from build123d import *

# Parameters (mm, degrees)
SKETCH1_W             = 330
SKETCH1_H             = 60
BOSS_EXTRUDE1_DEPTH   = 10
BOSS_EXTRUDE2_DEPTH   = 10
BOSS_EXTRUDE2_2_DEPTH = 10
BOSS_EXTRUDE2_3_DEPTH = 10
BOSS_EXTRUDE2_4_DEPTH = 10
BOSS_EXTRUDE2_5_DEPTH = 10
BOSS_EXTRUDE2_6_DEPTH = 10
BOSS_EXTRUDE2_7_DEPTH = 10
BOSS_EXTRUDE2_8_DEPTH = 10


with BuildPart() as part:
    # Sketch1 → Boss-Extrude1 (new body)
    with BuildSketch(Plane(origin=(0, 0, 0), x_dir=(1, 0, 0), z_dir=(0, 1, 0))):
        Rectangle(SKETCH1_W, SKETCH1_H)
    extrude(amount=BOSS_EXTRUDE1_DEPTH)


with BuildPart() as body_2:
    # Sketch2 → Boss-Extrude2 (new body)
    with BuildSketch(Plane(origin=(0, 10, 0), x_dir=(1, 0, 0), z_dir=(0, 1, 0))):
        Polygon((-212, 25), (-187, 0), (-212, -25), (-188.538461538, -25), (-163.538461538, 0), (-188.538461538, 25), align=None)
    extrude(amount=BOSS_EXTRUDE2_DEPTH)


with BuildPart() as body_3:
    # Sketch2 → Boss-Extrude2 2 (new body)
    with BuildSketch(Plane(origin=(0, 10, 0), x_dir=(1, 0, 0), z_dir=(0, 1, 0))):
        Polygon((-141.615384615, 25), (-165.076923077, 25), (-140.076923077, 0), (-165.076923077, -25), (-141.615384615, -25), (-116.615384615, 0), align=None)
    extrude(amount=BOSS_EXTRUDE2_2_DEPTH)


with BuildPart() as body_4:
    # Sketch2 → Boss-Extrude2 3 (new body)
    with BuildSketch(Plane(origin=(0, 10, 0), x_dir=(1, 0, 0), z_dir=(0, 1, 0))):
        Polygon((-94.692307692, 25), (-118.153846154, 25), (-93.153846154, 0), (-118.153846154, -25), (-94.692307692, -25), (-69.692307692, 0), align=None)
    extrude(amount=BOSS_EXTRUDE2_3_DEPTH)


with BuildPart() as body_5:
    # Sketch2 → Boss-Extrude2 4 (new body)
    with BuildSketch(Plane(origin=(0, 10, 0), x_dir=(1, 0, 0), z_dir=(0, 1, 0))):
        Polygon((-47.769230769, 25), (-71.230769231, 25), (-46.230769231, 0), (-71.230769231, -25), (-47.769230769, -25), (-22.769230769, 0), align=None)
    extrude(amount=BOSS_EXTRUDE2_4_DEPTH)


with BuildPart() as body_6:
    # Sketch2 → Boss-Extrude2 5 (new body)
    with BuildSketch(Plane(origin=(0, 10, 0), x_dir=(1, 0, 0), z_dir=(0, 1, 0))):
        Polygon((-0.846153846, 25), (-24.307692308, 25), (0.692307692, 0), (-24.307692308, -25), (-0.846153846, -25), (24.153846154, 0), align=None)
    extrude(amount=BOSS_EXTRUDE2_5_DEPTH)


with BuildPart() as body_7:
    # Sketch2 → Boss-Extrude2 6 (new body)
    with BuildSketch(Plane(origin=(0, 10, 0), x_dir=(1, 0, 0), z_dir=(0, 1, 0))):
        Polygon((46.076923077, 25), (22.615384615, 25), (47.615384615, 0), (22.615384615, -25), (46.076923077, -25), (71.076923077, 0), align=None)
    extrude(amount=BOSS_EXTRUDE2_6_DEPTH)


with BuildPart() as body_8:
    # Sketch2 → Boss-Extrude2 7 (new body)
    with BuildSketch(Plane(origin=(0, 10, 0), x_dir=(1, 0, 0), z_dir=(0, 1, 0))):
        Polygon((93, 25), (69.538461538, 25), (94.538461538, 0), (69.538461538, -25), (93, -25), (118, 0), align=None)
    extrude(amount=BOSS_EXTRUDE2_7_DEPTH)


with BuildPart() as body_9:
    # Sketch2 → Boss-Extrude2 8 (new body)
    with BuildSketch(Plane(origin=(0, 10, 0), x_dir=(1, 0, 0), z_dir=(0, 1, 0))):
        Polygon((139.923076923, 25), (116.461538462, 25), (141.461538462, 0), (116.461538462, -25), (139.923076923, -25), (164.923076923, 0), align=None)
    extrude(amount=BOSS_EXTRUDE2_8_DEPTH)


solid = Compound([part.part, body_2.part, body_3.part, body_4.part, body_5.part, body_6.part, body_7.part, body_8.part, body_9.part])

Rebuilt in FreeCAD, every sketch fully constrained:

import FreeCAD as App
import Part
import Sketcher
from FreeCAD import Vector
Q = App.Units.Quantity


def add_polygon(sketch, points):
    """Adds a closed chain of lines whose ends are joined by coincident constraints."""
    first, n = sketch.GeometryCount, len(points)
    for a, b in zip(points, points[1:] + points[:1]):
        sketch.addGeometry(Part.LineSegment(App.Vector(*a, 0), App.Vector(*b, 0)), False)
    for i in range(n):
        sketch.addConstraint(Sketcher.Constraint("Coincident", first + i, 2, first + (i + 1) % n, 1))

doc = App.newDocument("Part")
body = doc.addObject("PartDesign::Body", "Body")

# Sketch on XZ plane
sketch1 = body.newObject("Sketcher::SketchObject", "Sketch")
sketch1.AttachmentSupport = (doc.getObject("XZ_Plane"), [""])
sketch1.MapMode = "FlatFace"
add_polygon(sketch1, [(-165, -30), (-165, 30), (165, 30), (165, -30)])  # lines 0-3
sketch1.addConstraint(Sketcher.Constraint("Vertical", 0))
sketch1.addConstraint(Sketcher.Constraint("Horizontal", 1))
sketch1.addConstraint(Sketcher.Constraint("Vertical", 2))
sketch1.addConstraint(Sketcher.Constraint("Horizontal", 3))
sketch1.addConstraint(Sketcher.Constraint("Symmetric", 0, 2, 2, 2, -1, 1))
sketch1.addConstraint(Sketcher.Constraint("DistanceX", 1, 1, 1, 2, Q("330 mm")))
sketch1.addConstraint(Sketcher.Constraint("DistanceY", 0, 1, 0, 2, Q("60 mm")))
pad1 = body.newObject("PartDesign::Pad", "Pad")
pad1.Profile = sketch1
pad1.Length = 10
pad1.Reversed = True
body2 = doc.addObject("PartDesign::Body", "Body001")

# Sketch on XZ plane
sketch2 = body2.newObject("Sketcher::SketchObject", "Sketch001")
sketch2.AttachmentSupport = (doc.getObject("XZ_Plane001"), [""])
sketch2.MapMode = "FlatFace"
sketch2.AttachmentOffset = App.Placement(Vector(0, 0, -10), App.Rotation())
add_polygon(sketch2, [(-212, -25), (-187, 0), (-212, 25), (-188.538462, 25), (-163.538462, 0), (-188.538462, -25)])  # lines 0-5
sketch2.addConstraint(Sketcher.Constraint("Horizontal", 2))
sketch2.addConstraint(Sketcher.Constraint("Horizontal", 5))
sketch2.addConstraint(Sketcher.Constraint("Symmetric", 2, 2, 4, 2, -1))
sketch2.addConstraint(Sketcher.Constraint("PointOnObject", 0, 2, -1))
sketch2.addConstraint(Sketcher.Constraint("PointOnObject", 3, 2, -1))
sketch2.addConstraint(Sketcher.Constraint("Perpendicular", 0, 1))
sketch2.addConstraint(Sketcher.Constraint("Parallel", 1, 3))
sketch2.addConstraint(Sketcher.Constraint("Perpendicular", 3, 4))
sketch2.addConstraint(Sketcher.Constraint("DistanceX", 0, 2, -1, 1, Q("187 mm")))
sketch2.addConstraint(Sketcher.Constraint("DistanceX", 1, 2, -1, 1, Q("212 mm")))
sketch2.addConstraint(Sketcher.Constraint("DistanceX", 2, 1, 2, 2, Q("23.461538 mm")))
pad2 = body2.newObject("PartDesign::Pad", "Pad001")
pad2.Profile = sketch2
pad2.Length = 10
pad2.Reversed = True
body3 = doc.addObject("PartDesign::Body", "Body002")

# Sketch on XZ plane
sketch3 = body3.newObject("Sketcher::SketchObject", "Sketch002")
sketch3.AttachmentSupport = (doc.getObject("XZ_Plane002"), [""])
sketch3.MapMode = "FlatFace"
sketch3.AttachmentOffset = App.Placement(Vector(0, 0, -10), App.Rotation())
add_polygon(sketch3, [(-141.615385, -25), (-165.076923, -25), (-140.076923, 0), (-165.076923, 25), (-141.615385, 25), (-116.615385, 0)])  # lines 0-5
sketch3.addConstraint(Sketcher.Constraint("Horizontal", 0))
sketch3.addConstraint(Sketcher.Constraint("Horizontal", 3))
sketch3.addConstraint(Sketcher.Constraint("Symmetric", 0, 2, 2, 2, -1))
sketch3.addConstraint(Sketcher.Constraint("PointOnObject", 1, 2, -1))
sketch3.addConstraint(Sketcher.Constraint("PointOnObject", 4, 2, -1))
sketch3.addConstraint(Sketcher.Constraint("Perpendicular", 1, 2))
sketch3.addConstraint(Sketcher.Constraint("Parallel", 2, 4))
sketch3.addConstraint(Sketcher.Constraint("Perpendicular", 4, 5))
sketch3.addConstraint(Sketcher.Constraint("DistanceY", 0, 2, -1, 1, Q("25 mm")))
sketch3.addConstraint(Sketcher.Constraint("DistanceX", 0, 2, 0, 1, Q("23.461538 mm")))
sketch3.addConstraint(Sketcher.Constraint("DistanceX", 0, 2, -1, 1, Q("165.076923 mm")))
pad3 = body3.newObject("PartDesign::Pad", "Pad002")
pad3.Profile = sketch3
pad3.Length = 10
pad3.Reversed = True
body4 = doc.addObject("PartDesign::Body", "Body003")

# Sketch on XZ plane
sketch4 = body4.newObject("Sketcher::SketchObject", "Sketch003")
sketch4.AttachmentSupport = (doc.getObject("XZ_Plane003"), [""])
sketch4.MapMode = "FlatFace"
sketch4.AttachmentOffset = App.Placement(Vector(0, 0, -10), App.Rotation())
add_polygon(sketch4, [(-94.692308, -25), (-118.153846, -25), (-93.153846, 0), (-118.153846, 25), (-94.692308, 25), (-69.692308, 0)])  # lines 0-5
sketch4.addConstraint(Sketcher.Constraint("Horizontal", 0))
sketch4.addConstraint(Sketcher.Constraint("Horizontal", 3))
sketch4.addConstraint(Sketcher.Constraint("Symmetric", 0, 2, 2, 2, -1))
sketch4.addConstraint(Sketcher.Constraint("PointOnObject", 1, 2, -1))
sketch4.addConstraint(Sketcher.Constraint("PointOnObject", 4, 2, -1))
sketch4.addConstraint(Sketcher.Constraint("Perpendicular", 1, 2))
sketch4.addConstraint(Sketcher.Constraint("Parallel", 2, 4))
sketch4.addConstraint(Sketcher.Constraint("Perpendicular", 4, 5))
sketch4.addConstraint(Sketcher.Constraint("DistanceY", 0, 2, -1, 1, Q("25 mm")))
sketch4.addConstraint(Sketcher.Constraint("DistanceX", 0, 2, 0, 1, Q("23.461538 mm")))
sketch4.addConstraint(Sketcher.Constraint("DistanceX", 0, 2, -1, 1, Q("118.153846 mm")))
pad4 = body4.newObject("PartDesign::Pad", "Pad003")
pad4.Profile = sketch4
pad4.Length = 10
pad4.Reversed = True
body5 = doc.addObject("PartDesign::Body", "Body004")

# Sketch on XZ plane
sketch5 = body5.newObject("Sketcher::SketchObject", "Sketch004")
sketch5.AttachmentSupport = (doc.getObject("XZ_Plane004"), [""])
sketch5.MapMode = "FlatFace"
sketch5.AttachmentOffset = App.Placement(Vector(0, 0, -10), App.Rotation())
add_polygon(sketch5, [(-47.769231, -25), (-71.230769, -25), (-46.230769, 0), (-71.230769, 25), (-47.769231, 25), (-22.769231, 0)])  # lines 0-5
sketch5.addConstraint(Sketcher.Constraint("Horizontal", 0))
sketch5.addConstraint(Sketcher.Constraint("Horizontal", 3))
sketch5.addConstraint(Sketcher.Constraint("Symmetric", 0, 2, 2, 2, -1))
sketch5.addConstraint(Sketcher.Constraint("PointOnObject", 1, 2, -1))
sketch5.addConstraint(Sketcher.Constraint("PointOnObject", 4, 2, -1))
sketch5.addConstraint(Sketcher.Constraint("Perpendicular", 1, 2))
sketch5.addConstraint(Sketcher.Constraint("Parallel", 2, 4))
sketch5.addConstraint(Sketcher.Constraint("Perpendicular", 4, 5))
sketch5.addConstraint(Sketcher.Constraint("DistanceY", 0, 2, -1, 1, Q("25 mm")))
sketch5.addConstraint(Sketcher.Constraint("DistanceX", 0, 2, 0, 1, Q("23.461538 mm")))
sketch5.addConstraint(Sketcher.Constraint("DistanceX", 0, 2, -1, 1, Q("71.230769 mm")))
pad5 = body5.newObject("PartDesign::Pad", "Pad004")
pad5.Profile = sketch5
pad5.Length = 10
pad5.Reversed = True
body6 = doc.addObject("PartDesign::Body", "Body005")

# Sketch on XZ plane
sketch6 = body6.newObject("Sketcher::SketchObject", "Sketch005")
sketch6.AttachmentSupport = (doc.getObject("XZ_Plane005"), [""])
sketch6.MapMode = "FlatFace"
sketch6.AttachmentOffset = App.Placement(Vector(0, 0, -10), App.Rotation())
add_polygon(sketch6, [(-0.846154, -25), (-24.307692, -25), (0.692308, 0), (-24.307692, 25), (-0.846154, 25), (24.153846, 0)])  # lines 0-5
sketch6.addConstraint(Sketcher.Constraint("Horizontal", 0))
sketch6.addConstraint(Sketcher.Constraint("Horizontal", 3))
sketch6.addConstraint(Sketcher.Constraint("Symmetric", 0, 2, 2, 2, -1))
sketch6.addConstraint(Sketcher.Constraint("PointOnObject", 1, 2, -1))
sketch6.addConstraint(Sketcher.Constraint("PointOnObject", 4, 2, -1))
sketch6.addConstraint(Sketcher.Constraint("Perpendicular", 1, 2))
sketch6.addConstraint(Sketcher.Constraint("Parallel", 2, 4))
sketch6.addConstraint(Sketcher.Constraint("Perpendicular", 4, 5))
sketch6.addConstraint(Sketcher.Constraint("DistanceY", 0, 2, -1, 1, Q("25 mm")))
sketch6.addConstraint(Sketcher.Constraint("DistanceX", 0, 2, 0, 1, Q("23.461538 mm")))
sketch6.addConstraint(Sketcher.Constraint("DistanceX", 0, 2, -1, 1, Q("24.307692 mm")))
pad6 = body6.newObject("PartDesign::Pad", "Pad005")
pad6.Profile = sketch6
pad6.Length = 10
pad6.Reversed = True
body7 = doc.addObject("PartDesign::Body", "Body006")

# Sketch on XZ plane
sketch7 = body7.newObject("Sketcher::SketchObject", "Sketch006")
sketch7.AttachmentSupport = (doc.getObject("XZ_Plane006"), [""])
sketch7.MapMode = "FlatFace"
sketch7.AttachmentOffset = App.Placement(Vector(0, 0, -10), App.Rotation())
add_polygon(sketch7, [(46.076923, -25), (22.615385, -25), (47.615385, 0), (22.615385, 25), (46.076923, 25), (71.076923, 0)])  # lines 0-5
sketch7.addConstraint(Sketcher.Constraint("Horizontal", 0))
sketch7.addConstraint(Sketcher.Constraint("Horizontal", 3))
sketch7.addConstraint(Sketcher.Constraint("Symmetric", 0, 2, 2, 2, -1))
sketch7.addConstraint(Sketcher.Constraint("PointOnObject", 1, 2, -1))
sketch7.addConstraint(Sketcher.Constraint("PointOnObject", 4, 2, -1))
sketch7.addConstraint(Sketcher.Constraint("Perpendicular", 1, 2))
sketch7.addConstraint(Sketcher.Constraint("Parallel", 2, 4))
sketch7.addConstraint(Sketcher.Constraint("Perpendicular", 4, 5))
sketch7.addConstraint(Sketcher.Constraint("DistanceY", 0, 2, -1, 1, Q("25 mm")))
sketch7.addConstraint(Sketcher.Constraint("DistanceX", 0, 2, 0, 1, Q("23.461538 mm")))
sketch7.addConstraint(Sketcher.Constraint("DistanceX", -1, 1, 0, 2, Q("22.615385 mm")))
pad7 = body7.newObject("PartDesign::Pad", "Pad006")
pad7.Profile = sketch7
pad7.Length = 10
pad7.Reversed = True
body8 = doc.addObject("PartDesign::Body", "Body007")

# Sketch on XZ plane
sketch8 = body8.newObject("Sketcher::SketchObject", "Sketch007")
sketch8.AttachmentSupport = (doc.getObject("XZ_Plane007"), [""])
sketch8.MapMode = "FlatFace"
sketch8.AttachmentOffset = App.Placement(Vector(0, 0, -10), App.Rotation())
add_polygon(sketch8, [(93, -25), (69.538462, -25), (94.538462, 0), (69.538462, 25), (93, 25), (118, 0)])  # lines 0-5
sketch8.addConstraint(Sketcher.Constraint("Horizontal", 0))
sketch8.addConstraint(Sketcher.Constraint("Horizontal", 3))
sketch8.addConstraint(Sketcher.Constraint("Symmetric", 0, 2, 2, 2, -1))
sketch8.addConstraint(Sketcher.Constraint("PointOnObject", 1, 2, -1))
sketch8.addConstraint(Sketcher.Constraint("PointOnObject", 4, 2, -1))
sketch8.addConstraint(Sketcher.Constraint("Perpendicular", 1, 2))
sketch8.addConstraint(Sketcher.Constraint("Parallel", 2, 4))
sketch8.addConstraint(Sketcher.Constraint("Perpendicular", 4, 5))
sketch8.addConstraint(Sketcher.Constraint("DistanceY", 0, 2, -1, 1, Q("25 mm")))
sketch8.addConstraint(Sketcher.Constraint("DistanceX", -1, 1, 3, 2, Q("93 mm")))
sketch8.addConstraint(Sketcher.Constraint("DistanceX", 0, 2, 0, 1, Q("23.461538 mm")))
pad8 = body8.newObject("PartDesign::Pad", "Pad007")
pad8.Profile = sketch8
pad8.Length = 10
pad8.Reversed = True
body9 = doc.addObject("PartDesign::Body", "Body008")

# Sketch on XZ plane
sketch9 = body9.newObject("Sketcher::SketchObject", "Sketch008")
sketch9.AttachmentSupport = (doc.getObject("XZ_Plane008"), [""])
sketch9.MapMode = "FlatFace"
sketch9.AttachmentOffset = App.Placement(Vector(0, 0, -10), App.Rotation())
add_polygon(sketch9, [(139.923077, -25), (116.461538, -25), (141.461538, 0), (116.461538, 25), (139.923077, 25), (164.923077, 0)])  # lines 0-5
sketch9.addConstraint(Sketcher.Constraint("Horizontal", 0))
sketch9.addConstraint(Sketcher.Constraint("Horizontal", 3))
sketch9.addConstraint(Sketcher.Constraint("Symmetric", 0, 2, 2, 2, -1))
sketch9.addConstraint(Sketcher.Constraint("PointOnObject", 1, 2, -1))
sketch9.addConstraint(Sketcher.Constraint("PointOnObject", 4, 2, -1))
sketch9.addConstraint(Sketcher.Constraint("Perpendicular", 1, 2))
sketch9.addConstraint(Sketcher.Constraint("Parallel", 2, 4))
sketch9.addConstraint(Sketcher.Constraint("Perpendicular", 4, 5))
sketch9.addConstraint(Sketcher.Constraint("DistanceY", 0, 2, -1, 1, Q("25 mm")))
sketch9.addConstraint(Sketcher.Constraint("DistanceX", 0, 2, 0, 1, Q("23.461538 mm")))
sketch9.addConstraint(Sketcher.Constraint("DistanceX", -1, 1, 0, 2, Q("116.461538 mm")))
pad9 = body9.newObject("PartDesign::Pad", "Pad008")
pad9.Profile = sketch9
pad9.Length = 10
pad9.Reversed = True

doc.recompute()
